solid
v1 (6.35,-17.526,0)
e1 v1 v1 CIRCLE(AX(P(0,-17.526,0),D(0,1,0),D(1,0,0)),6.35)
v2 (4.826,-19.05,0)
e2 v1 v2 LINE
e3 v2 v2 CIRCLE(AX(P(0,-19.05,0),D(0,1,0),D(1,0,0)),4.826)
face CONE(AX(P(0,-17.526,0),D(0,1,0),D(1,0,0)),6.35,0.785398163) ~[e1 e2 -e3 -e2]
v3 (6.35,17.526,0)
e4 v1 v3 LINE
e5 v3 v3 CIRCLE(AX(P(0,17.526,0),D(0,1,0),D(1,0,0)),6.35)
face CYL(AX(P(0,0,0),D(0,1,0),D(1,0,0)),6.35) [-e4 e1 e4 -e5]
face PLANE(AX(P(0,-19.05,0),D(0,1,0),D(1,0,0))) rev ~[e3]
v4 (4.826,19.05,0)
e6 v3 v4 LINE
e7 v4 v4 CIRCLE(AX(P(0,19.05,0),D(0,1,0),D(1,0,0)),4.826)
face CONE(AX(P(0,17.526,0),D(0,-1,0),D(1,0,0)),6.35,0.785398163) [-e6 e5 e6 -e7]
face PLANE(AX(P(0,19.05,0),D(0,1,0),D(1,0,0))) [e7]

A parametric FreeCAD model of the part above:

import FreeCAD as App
import Part
import Sketcher

V = App.Vector
Q = App.Units.Quantity


def edges_at(feature, points):
    """Names of the edges that pass closest to the given points."""
    edges = feature.Shape.Edges
    near = lambda p: min(range(len(edges)), key=lambda i: edges[i].distToShape(Part.Vertex(*p))[0])
    return sorted({f"Edge{near(p) + 1}" for p in points})

doc = App.newDocument("Part")
body = doc.addObject("PartDesign::Body", "Body")

sketch1 = body.newObject("Sketcher::SketchObject", "Sketch")
sketch1.AttachmentSupport = (doc.getObject("XZ_Plane"), [""])
sketch1.MapMode = "FlatFace"
sketch1.addGeometry(Part.Circle(V(0, 0, 0), V(0, 0, 1), 6.35), False)
sketch1.addConstraint([
    Sketcher.Constraint("Coincident", 0, 3, -1, 1),
    Sketcher.Constraint("Diameter", 0, Q("0.5 in")),
])
pad1 = body.newObject("PartDesign::Pad", "Pad")
pad1.Profile = sketch1
pad1.Length = Q("1.5 in")
pad1.Midplane = True
doc.recompute()

chamfer = body.newObject("PartDesign::Chamfer", "Chamfer")
chamfer.Base = (pad1, edges_at(pad1, [(-6.35, -19.05, 0), (-6.35, 19.05, 0)]))
chamfer.Size = Q("0.06 in")

doc.recompute()
